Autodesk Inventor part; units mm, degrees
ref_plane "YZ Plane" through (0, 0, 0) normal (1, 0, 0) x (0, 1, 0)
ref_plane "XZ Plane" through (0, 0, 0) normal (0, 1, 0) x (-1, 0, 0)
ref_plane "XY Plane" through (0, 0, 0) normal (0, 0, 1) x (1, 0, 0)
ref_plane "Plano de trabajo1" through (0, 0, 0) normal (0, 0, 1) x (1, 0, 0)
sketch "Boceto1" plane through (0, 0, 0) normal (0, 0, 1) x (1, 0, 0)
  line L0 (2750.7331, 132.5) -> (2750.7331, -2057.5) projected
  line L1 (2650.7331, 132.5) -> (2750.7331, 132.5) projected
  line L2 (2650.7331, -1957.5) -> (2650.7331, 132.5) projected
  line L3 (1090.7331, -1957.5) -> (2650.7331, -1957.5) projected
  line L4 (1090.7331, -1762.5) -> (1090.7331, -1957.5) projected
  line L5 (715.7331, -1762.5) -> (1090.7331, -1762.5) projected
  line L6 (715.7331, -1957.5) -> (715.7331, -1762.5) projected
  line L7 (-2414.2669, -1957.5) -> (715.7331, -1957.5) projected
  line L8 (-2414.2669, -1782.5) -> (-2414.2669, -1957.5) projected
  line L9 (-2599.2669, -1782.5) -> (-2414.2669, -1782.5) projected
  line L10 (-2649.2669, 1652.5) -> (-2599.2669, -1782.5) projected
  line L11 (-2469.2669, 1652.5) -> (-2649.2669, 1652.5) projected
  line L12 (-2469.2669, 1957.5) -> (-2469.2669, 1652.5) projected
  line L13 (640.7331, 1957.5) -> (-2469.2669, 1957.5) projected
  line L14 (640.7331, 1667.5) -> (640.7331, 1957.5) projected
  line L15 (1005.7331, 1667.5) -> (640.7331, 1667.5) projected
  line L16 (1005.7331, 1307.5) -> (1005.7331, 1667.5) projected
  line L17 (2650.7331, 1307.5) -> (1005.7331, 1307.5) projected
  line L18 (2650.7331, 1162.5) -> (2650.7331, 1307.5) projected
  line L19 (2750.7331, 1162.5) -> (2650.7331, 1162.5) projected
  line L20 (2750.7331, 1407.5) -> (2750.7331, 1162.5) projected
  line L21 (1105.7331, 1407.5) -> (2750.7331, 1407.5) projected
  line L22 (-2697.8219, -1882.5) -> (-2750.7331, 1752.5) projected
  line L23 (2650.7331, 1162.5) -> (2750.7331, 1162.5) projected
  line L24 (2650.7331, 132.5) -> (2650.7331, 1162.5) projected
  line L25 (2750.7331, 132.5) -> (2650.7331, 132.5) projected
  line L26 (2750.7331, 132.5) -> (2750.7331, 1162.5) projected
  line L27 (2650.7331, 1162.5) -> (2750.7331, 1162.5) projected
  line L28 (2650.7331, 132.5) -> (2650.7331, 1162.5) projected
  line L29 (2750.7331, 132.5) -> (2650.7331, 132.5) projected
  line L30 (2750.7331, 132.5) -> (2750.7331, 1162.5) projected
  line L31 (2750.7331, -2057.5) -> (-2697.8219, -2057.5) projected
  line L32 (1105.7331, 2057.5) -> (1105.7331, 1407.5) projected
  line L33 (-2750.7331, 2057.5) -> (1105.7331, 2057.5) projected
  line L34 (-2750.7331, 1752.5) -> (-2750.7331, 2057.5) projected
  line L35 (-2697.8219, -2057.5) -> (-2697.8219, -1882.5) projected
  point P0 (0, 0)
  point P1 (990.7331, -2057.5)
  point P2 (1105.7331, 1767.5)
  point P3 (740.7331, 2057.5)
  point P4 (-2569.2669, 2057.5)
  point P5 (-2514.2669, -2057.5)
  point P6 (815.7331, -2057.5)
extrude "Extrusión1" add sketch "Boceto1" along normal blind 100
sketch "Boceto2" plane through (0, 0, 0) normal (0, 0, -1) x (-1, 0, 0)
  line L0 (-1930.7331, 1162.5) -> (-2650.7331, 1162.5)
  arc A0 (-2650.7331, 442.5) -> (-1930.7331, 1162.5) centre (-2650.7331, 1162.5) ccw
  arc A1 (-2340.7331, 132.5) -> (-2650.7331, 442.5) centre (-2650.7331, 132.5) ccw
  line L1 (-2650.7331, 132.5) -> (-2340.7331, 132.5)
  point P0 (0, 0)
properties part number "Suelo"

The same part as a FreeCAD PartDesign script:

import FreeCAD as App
import Part
import Sketcher
from FreeCAD import Vector

doc = App.newDocument("Part")
body = doc.addObject("PartDesign::Body", "Body")

# Sketch on XY plane
sketch1 = doc.addObject("Sketcher::SketchObject", "Sketch")
body.addObject(sketch1)
sketch1.AttachmentSupport = (doc.XY_Plane, [""])
sketch1.MapMode = "FlatFace"
sketch1.addGeometry([
    Part.LineSegment(Vector(2750.7331, -2057.5, 0), Vector(2750.7331, 1407.5, 0)),  # 0
    Part.LineSegment(Vector(2750.7331, 1407.5, 0), Vector(1105.7331, 1407.5, 0)),  # 1
    Part.LineSegment(Vector(1105.7331, 1407.5, 0), Vector(1105.7331, 2057.5, 0)),  # 2
    Part.LineSegment(Vector(1105.7331, 2057.5, 0), Vector(-2750.7331, 2057.5, 0)),  # 3
    Part.LineSegment(Vector(-2750.7331, 2057.5, 0), Vector(-2750.7331, 1752.5, 0)),  # 4
    Part.LineSegment(Vector(-2750.7331, 1752.5, 0), Vector(-2697.8219, -1882.5, 0)),  # 5
    Part.LineSegment(Vector(-2697.8219, -1882.5, 0), Vector(-2697.8219, -2057.5, 0)),  # 6
    Part.LineSegment(Vector(-2697.8219, -2057.5, 0), Vector(2750.7331, -2057.5, 0)),  # 7
], False)
sketch1.addConstraint([
    Sketcher.Constraint("Coincident", 0, 2, 1, 1),
    Sketcher.Constraint("Coincident", 1, 2, 2, 1),
    Sketcher.Constraint("Coincident", 2, 2, 3, 1),
    Sketcher.Constraint("Coincident", 3, 2, 4, 1),
    Sketcher.Constraint("Coincident", 4, 2, 5, 1),
    Sketcher.Constraint("Coincident", 5, 2, 6, 1),
    Sketcher.Constraint("Coincident", 6, 2, 7, 1),
    Sketcher.Constraint("Coincident", 7, 2, 0, 1),
    Sketcher.Constraint("Vertical", 0),
    Sketcher.Constraint("Horizontal", 1),
    Sketcher.Constraint("Vertical", 2),
    Sketcher.Constraint("Horizontal", 3),
    Sketcher.Constraint("Vertical", 4),
    Sketcher.Constraint("Vertical", 6),
    Sketcher.Constraint("Horizontal", 7),
    Sketcher.Constraint("Symmetric", 3, 2, 7, 2, -1, 1),
    Sketcher.Constraint("DistanceX", 1, 2, 1, 1, 1645.0),
    Sketcher.Constraint("DistanceY", 0, 1, 0, 2, 3465.0),
    Sketcher.Constraint("DistanceY", 2, 1, 2, 2, 650.0),
    Sketcher.Constraint("DistanceY", 4, 2, 4, 1, 305.0),
    Sketcher.Constraint("DistanceY", 6, 2, 6, 1, 175.0),
    Sketcher.Constraint("DistanceX", 7, 1, 7, 2, 5448.555),
    Sketcher.Constraint("Distance", 5, 3635.385),
])
pad1 = doc.addObject("PartDesign::Pad", "Pad")
body.addObject(pad1)
pad1.Profile = sketch1
pad1.Length = 100

doc.recompute()
